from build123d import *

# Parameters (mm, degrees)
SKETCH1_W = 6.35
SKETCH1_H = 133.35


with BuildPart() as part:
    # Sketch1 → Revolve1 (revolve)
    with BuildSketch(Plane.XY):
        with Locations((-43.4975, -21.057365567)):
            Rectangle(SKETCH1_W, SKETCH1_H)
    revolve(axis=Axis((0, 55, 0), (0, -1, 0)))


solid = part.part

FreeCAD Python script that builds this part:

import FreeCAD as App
import Part
import Sketcher
from FreeCAD import Vector
Q = App.Units.Quantity


def add_polygon(sketch, points):
    """Adds a closed chain of lines whose ends are joined by coincident constraints."""
    first, n = sketch.GeometryCount, len(points)
    for a, b in zip(points, points[1:] + points[:1]):
        sketch.addGeometry(Part.LineSegment(App.Vector(*a, 0), App.Vector(*b, 0)), False)
    for i in range(n):
        sketch.addConstraint(Sketcher.Constraint("Coincident", first + i, 2, first + (i + 1) % n, 1))

doc = App.newDocument("Part")
body = doc.addObject("PartDesign::Body", "Body")

sketch1 = body.newObject("Sketcher::SketchObject", "Sketch")
sketch1.AttachmentSupport = (doc.getObject("XY_Plane"), [""])
sketch1.MapMode = "FlatFace"
add_polygon(sketch1, [(-47, 46), (-47, -88), (-40, -88), (-40, 46)])
sketch1.addConstraint([
    Sketcher.Constraint("Vertical", 0),
    Sketcher.Constraint("Horizontal", 1),
    Sketcher.Constraint("Vertical", 2),
    Sketcher.Constraint("Horizontal", 3),
    Sketcher.Constraint("DistanceX", 1, 1, 1, 2, Q("0.25 in")),
    Sketcher.Constraint("DistanceY", 0, 2, 0, 1, Q("5.25 in")),
    Sketcher.Constraint("DistanceX", 0, 2, -1, 1, Q("1.8375 in")),
    Sketcher.Constraint("DistanceY", 0, 2, -1, 1, 87.732366),
])
revolution = body.newObject("PartDesign::Revolution", "Revolution")
revolution.Profile = sketch1
revolution.ReferenceAxis = (sketch1, ["V_Axis"])
revolution.Angle = 360

doc.recompute()
